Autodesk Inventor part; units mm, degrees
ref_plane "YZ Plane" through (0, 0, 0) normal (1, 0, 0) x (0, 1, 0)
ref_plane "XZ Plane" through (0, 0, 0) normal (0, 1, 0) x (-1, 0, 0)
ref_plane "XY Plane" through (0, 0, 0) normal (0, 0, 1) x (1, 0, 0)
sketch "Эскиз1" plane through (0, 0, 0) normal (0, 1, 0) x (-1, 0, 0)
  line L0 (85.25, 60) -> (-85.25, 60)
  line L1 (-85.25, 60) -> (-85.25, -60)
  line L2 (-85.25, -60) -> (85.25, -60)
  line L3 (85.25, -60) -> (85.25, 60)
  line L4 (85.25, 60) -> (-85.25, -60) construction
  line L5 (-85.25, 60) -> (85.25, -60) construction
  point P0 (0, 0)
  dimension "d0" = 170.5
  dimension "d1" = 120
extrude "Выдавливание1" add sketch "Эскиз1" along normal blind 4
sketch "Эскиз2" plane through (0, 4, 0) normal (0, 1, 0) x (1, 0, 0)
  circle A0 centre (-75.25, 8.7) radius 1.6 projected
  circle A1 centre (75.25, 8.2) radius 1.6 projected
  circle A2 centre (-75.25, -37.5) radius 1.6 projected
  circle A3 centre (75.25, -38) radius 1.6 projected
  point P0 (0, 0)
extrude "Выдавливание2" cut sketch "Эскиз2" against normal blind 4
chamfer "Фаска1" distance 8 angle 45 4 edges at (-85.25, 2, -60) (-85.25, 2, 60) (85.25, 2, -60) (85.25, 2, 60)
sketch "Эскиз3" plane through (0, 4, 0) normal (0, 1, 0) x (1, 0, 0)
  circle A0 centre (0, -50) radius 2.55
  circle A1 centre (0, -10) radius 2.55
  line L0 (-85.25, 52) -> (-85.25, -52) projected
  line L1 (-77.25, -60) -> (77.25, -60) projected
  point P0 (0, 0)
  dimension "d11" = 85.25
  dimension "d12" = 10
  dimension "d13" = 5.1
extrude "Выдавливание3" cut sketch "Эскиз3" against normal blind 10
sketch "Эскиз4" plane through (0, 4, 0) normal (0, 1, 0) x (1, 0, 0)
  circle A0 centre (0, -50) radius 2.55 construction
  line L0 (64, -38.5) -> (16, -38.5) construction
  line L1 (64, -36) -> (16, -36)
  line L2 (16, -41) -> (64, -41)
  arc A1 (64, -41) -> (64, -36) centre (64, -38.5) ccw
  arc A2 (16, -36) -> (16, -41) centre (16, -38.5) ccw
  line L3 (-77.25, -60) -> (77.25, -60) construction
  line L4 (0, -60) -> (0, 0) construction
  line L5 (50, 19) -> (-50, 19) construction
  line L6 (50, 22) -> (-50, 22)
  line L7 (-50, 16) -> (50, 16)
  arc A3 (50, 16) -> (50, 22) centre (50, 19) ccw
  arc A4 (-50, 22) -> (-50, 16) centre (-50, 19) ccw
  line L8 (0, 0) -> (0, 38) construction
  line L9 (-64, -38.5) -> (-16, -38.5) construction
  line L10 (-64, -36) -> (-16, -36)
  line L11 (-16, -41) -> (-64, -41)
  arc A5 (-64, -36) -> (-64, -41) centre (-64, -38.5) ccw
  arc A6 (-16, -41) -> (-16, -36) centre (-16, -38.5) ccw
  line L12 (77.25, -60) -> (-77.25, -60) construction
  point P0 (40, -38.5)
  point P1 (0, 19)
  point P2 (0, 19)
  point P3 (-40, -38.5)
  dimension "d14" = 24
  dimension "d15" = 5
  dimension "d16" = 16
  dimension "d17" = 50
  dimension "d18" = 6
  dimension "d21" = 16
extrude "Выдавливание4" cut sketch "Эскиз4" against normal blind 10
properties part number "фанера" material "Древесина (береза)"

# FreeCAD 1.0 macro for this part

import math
import FreeCAD as App
import Part
import Sketcher
from FreeCAD import Vector


def edges_at(feature, points):
    """Names of the edges that pass closest to the given points."""
    edges = feature.Shape.Edges
    near = lambda p: min(range(len(edges)), key=lambda i: edges[i].distToShape(Part.Vertex(*p))[0])
    return sorted({f"Edge{near(p) + 1}" for p in points})


def add_polygon(sketch, points):
    """Adds a closed chain of lines whose ends are joined by coincident constraints."""
    first, n = sketch.GeometryCount, len(points)
    for a, b in zip(points, points[1:] + points[:1]):
        sketch.addGeometry(Part.LineSegment(App.Vector(*a, 0), App.Vector(*b, 0)), False)
    for i in range(n):
        sketch.addConstraint(Sketcher.Constraint("Coincident", first + i, 2, first + (i + 1) % n, 1))

doc = App.newDocument("Part")
body = doc.addObject("PartDesign::Body", "Body")

sketch1 = body.newObject("Sketcher::SketchObject", "Sketch")
sketch1.AttachmentSupport = (doc.getObject("XZ_Plane"), [""])
sketch1.MapMode = "FlatFace"
add_polygon(sketch1, [(-85.25, -60), (-85.25, 60), (85.25, 60), (85.25, -60)])
sketch1.addConstraint([
    Sketcher.Constraint("Vertical", 0),
    Sketcher.Constraint("Horizontal", 1),
    Sketcher.Constraint("Vertical", 2),
    Sketcher.Constraint("Horizontal", 3),
    Sketcher.Constraint("Symmetric", 0, 2, 2, 2, -1, 1),
    Sketcher.Constraint("DistanceY", 0, 1, 0, 2, 120.0),
    Sketcher.Constraint("DistanceX", 1, 1, 1, 2, 170.5),
])
pad1 = body.newObject("PartDesign::Pad", "Pad")
pad1.Profile = sketch1
pad1.Length = 4
pad1.Reversed = True

sketch2 = body.newObject("Sketcher::SketchObject", "Sketch001")
sketch2.AttachmentSupport = (doc.getObject("XZ_Plane"), [""])
sketch2.MapMode = "FlatFace"
sketch2.AttachmentOffset = App.Placement(Vector(0, 0, -4), App.Rotation())
sketch2.addGeometry([
    Part.Circle(Vector(-75.25, -8.7, 0), Vector(0, 0, 1), 1.6),
    Part.Circle(Vector(75.25, -8.2, 0), Vector(0, 0, 1), 1.6),
    Part.Circle(Vector(-75.25, 37.5, 0), Vector(0, 0, 1), 1.6),
    Part.Circle(Vector(75.25, 38, 0), Vector(0, 0, 1), 1.6),
], False)
sketch2.addConstraint([
    Sketcher.Constraint("Equal", 0, 1),
    Sketcher.Constraint("Equal", 1, 2),
    Sketcher.Constraint("Equal", 2, 3),
    Sketcher.Constraint("Vertical", 0, 3, 2, 3),
    Sketcher.Constraint("Vertical", 1, 3, 3, 3),
    Sketcher.Constraint("Diameter", 0, 3.2),
    Sketcher.Constraint("DistanceY", -1, 1, 3, 3, 38.0),
    Sketcher.Constraint("DistanceY", 0, 3, -1, 1, 8.7),
    Sketcher.Constraint("DistanceY", 1, 3, -1, 1, 8.2),
    Sketcher.Constraint("DistanceY", -1, 1, 2, 3, 37.5),
    Sketcher.Constraint("DistanceX", 0, 3, 1, 3, 150.5),
    Sketcher.Constraint("DistanceX", 0, 3, -1, 1, 75.25),
])
pocket1 = body.newObject("PartDesign::Pocket", "Pocket")
pocket1.Profile = sketch2
pocket1.Length = 4
pocket1.Reversed = True
doc.recompute()

chamfer = body.newObject("PartDesign::Chamfer", "Chamfer")
chamfer.Base = (pocket1, edges_at(pocket1, [
    (-85.25, 2, -60),
    (-85.25, 2, 60),
    (85.25, 2, -60),
    (85.25, 2, 60),
]))
chamfer.Size = 8

sketch3 = body.newObject("Sketcher::SketchObject", "Sketch002")
sketch3.AttachmentSupport = (doc.getObject("XZ_Plane"), [""])
sketch3.MapMode = "FlatFace"
sketch3.AttachmentOffset = App.Placement(Vector(0, 0, -4), App.Rotation())
sketch3.addGeometry([
    Part.Circle(Vector(0, 50, 0), Vector(0, 0, 1), 2.55),
    Part.Circle(Vector(0, 10, 0), Vector(0, 0, 1), 2.55),
], False)
sketch3.addConstraint([
    Sketcher.Constraint("Equal", 0, 1),
    Sketcher.Constraint("PointOnObject", 0, 3, -2),
    Sketcher.Constraint("PointOnObject", 1, 3, -2),
    Sketcher.Constraint("Diameter", 0, 5.1),
    Sketcher.Constraint("DistanceY", -1, 1, 1, 3, 10.0),
    Sketcher.Constraint("DistanceY", -1, 1, 0, 3, 50.0),
])
pocket2 = body.newObject("PartDesign::Pocket", "Pocket001")
pocket2.Profile = sketch3
pocket2.Length = 10
pocket2.Reversed = True

sketch4 = body.newObject("Sketcher::SketchObject", "Sketch003")
sketch4.AttachmentSupport = (doc.getObject("XZ_Plane"), [""])
sketch4.MapMode = "FlatFace"
sketch4.AttachmentOffset = App.Placement(Vector(0, 0, -4), App.Rotation())
sketch4.addGeometry([
    Part.ArcOfCircle(Part.Circle(Vector(64, 38.5, 0), Vector(0, 0, 1), 2.5), math.radians(-90), math.radians(90)),
    Part.LineSegment(Vector(64, 36, 0), Vector(16, 36, 0)),
    Part.ArcOfCircle(Part.Circle(Vector(16, 38.5, 0), Vector(0, 0, 1), 2.5), math.radians(90), math.radians(270)),
    Part.LineSegment(Vector(16, 41, 0), Vector(64, 41, 0)),
    Part.ArcOfCircle(Part.Circle(Vector(50, -19, 0), Vector(0, 0, 1), 3), math.radians(-90), math.radians(90)),
    Part.LineSegment(Vector(50, -22, 0), Vector(-50, -22, 0)),
    Part.ArcOfCircle(Part.Circle(Vector(-50, -19, 0), Vector(0, 0, 1), 3), math.radians(90), math.radians(270)),
    Part.LineSegment(Vector(-50, -16, 0), Vector(50, -16, 0)),
    Part.LineSegment(Vector(-16, 36, 0), Vector(-64, 36, 0)),
    Part.ArcOfCircle(Part.Circle(Vector(-64, 38.5, 0), Vector(0, 0, 1), 2.5), math.radians(90), math.radians(270)),
    Part.LineSegment(Vector(-64, 41, 0), Vector(-16, 41, 0)),
    Part.ArcOfCircle(Part.Circle(Vector(-16, 38.5, 0), Vector(0, 0, 1), 2.5), math.radians(-90), math.radians(90)),
], False)
sketch4.addConstraint([
    Sketcher.Constraint("Tangent", 0, 1, 1, 1),
    Sketcher.Constraint("Tangent", 1, 2, 2, 2),
    Sketcher.Constraint("Tangent", 2, 1, 3, 1),
    Sketcher.Constraint("Tangent", 3, 2, 0, 2),
    Sketcher.Constraint("Tangent", 4, 1, 5, 1),
    Sketcher.Constraint("Tangent", 5, 2, 6, 2),
    Sketcher.Constraint("Tangent", 6, 1, 7, 1),
    Sketcher.Constraint("Tangent", 7, 2, 4, 2),
    Sketcher.Constraint("Tangent", 8, 2, 9, 2),
    Sketcher.Constraint("Tangent", 9, 1, 10, 1),
    Sketcher.Constraint("Tangent", 10, 2, 11, 2),
    Sketcher.Constraint("Tangent", 11, 1, 8, 1),
    Sketcher.Constraint("Horizontal", 1),
    Sketcher.Constraint("Horizontal", 3),
    Sketcher.Constraint("Horizontal", 5),
    Sketcher.Constraint("Horizontal", 7),
    Sketcher.Constraint("Horizontal", 8),
    Sketcher.Constraint("Horizontal", 10),
    Sketcher.Constraint("Equal", 2, 9),
    Sketcher.Constraint("Symmetric", 0, 3, 9, 3, -2),
    Sketcher.Constraint("Equal", 3, 8),
    Sketcher.Constraint("Radius", 4, 3.0),
    Sketcher.Constraint("Radius", 0, 2.5),
    Sketcher.Constraint("DistanceX", -1, 1, 2, 3, 16.0),
    Sketcher.Constraint("DistanceX", -1, 1, 4, 3, 50.0),
    Sketcher.Constraint("DistanceX", 6, 3, -1, 1, 50.0),
    Sketcher.Constraint("DistanceY", 6, 1, -1, 1, 16.0),
    Sketcher.Constraint("DistanceX", 1, 2, 1, 1, 48.0),
    Sketcher.Constraint("DistanceY", -1, 1, 0, 1, 36.0),
])
pocket3 = body.newObject("PartDesign::Pocket", "Pocket002")
pocket3.Profile = sketch4
pocket3.Length = 10
pocket3.Reversed = True

doc.recompute()
